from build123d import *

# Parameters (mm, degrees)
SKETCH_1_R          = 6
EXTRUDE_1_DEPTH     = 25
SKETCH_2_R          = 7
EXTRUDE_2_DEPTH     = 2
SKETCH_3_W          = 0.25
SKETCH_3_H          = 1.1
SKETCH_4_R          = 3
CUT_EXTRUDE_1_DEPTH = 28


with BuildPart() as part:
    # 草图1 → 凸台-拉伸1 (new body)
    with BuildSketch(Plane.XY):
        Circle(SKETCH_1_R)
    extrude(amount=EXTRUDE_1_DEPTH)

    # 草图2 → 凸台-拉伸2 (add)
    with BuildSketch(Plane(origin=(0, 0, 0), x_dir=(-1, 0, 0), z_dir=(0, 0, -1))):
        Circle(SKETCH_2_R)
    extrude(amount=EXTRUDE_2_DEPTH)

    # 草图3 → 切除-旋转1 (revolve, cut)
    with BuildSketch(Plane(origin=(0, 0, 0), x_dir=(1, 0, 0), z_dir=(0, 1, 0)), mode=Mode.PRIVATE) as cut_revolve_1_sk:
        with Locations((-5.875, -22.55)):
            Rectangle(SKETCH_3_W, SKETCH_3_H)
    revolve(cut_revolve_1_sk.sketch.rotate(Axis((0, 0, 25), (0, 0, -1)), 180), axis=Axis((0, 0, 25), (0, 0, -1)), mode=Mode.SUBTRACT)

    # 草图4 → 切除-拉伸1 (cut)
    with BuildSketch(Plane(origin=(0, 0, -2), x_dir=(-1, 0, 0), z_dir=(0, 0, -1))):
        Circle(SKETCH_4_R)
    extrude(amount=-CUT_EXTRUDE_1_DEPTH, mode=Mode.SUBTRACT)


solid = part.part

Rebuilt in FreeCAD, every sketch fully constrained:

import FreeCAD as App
import Part
import Sketcher

V = App.Vector
Q = App.Units.Quantity


def add_polygon(sketch, points):
    """Adds a closed chain of lines whose ends are joined by coincident constraints."""
    first, n = sketch.GeometryCount, len(points)
    for a, b in zip(points, points[1:] + points[:1]):
        sketch.addGeometry(Part.LineSegment(App.Vector(*a, 0), App.Vector(*b, 0)), False)
    for i in range(n):
        sketch.addConstraint(Sketcher.Constraint("Coincident", first + i, 2, first + (i + 1) % n, 1))

doc = App.newDocument("Part")
body = doc.addObject("PartDesign::Body", "Body")

sketch1 = body.newObject("Sketcher::SketchObject", "Sketch")
sketch1.AttachmentSupport = (doc.getObject("XY_Plane"), [""])
sketch1.MapMode = "FlatFace"
sketch1.addGeometry(Part.Circle(V(0, 0, 0), V(0, 0, 1), 6), False)
sketch1.addConstraint(Sketcher.Constraint("Coincident", 0, 3, -1, 1))
sketch1.addConstraint(Sketcher.Constraint("Diameter", 0, Q("12 mm")))
pad1 = body.newObject("PartDesign::Pad", "Pad")
pad1.Profile = sketch1
pad1.Length = 25

sketch2 = body.newObject("Sketcher::SketchObject", "Sketch001")
sketch2.AttachmentSupport = (doc.getObject("XY_Plane"), [""])
sketch2.MapMode = "FlatFace"
sketch2.addGeometry(Part.Circle(V(0, 0, 0), V(0, 0, 1), 7), False)
sketch2.addConstraint(Sketcher.Constraint("Coincident", 0, 3, -1, 1))
sketch2.addConstraint(Sketcher.Constraint("Diameter", 0, Q("14 mm")))
pad2 = body.newObject("PartDesign::Pad", "Pad001")
pad2.Profile = sketch2
pad2.Length = 2
pad2.Reversed = True

sketch3 = body.newObject("Sketcher::SketchObject", "Sketch002")
sketch3.AttachmentSupport = (doc.getObject("XZ_Plane"), [""])
sketch3.MapMode = "FlatFace"
add_polygon(sketch3, [(-6, 22), (-6, 23.1), (-5.75, 23.1), (-5.75, 22)])
sketch3.addConstraint(Sketcher.Constraint("Vertical", 0))
sketch3.addConstraint(Sketcher.Constraint("Horizontal", 1))
sketch3.addConstraint(Sketcher.Constraint("Vertical", 2))
sketch3.addConstraint(Sketcher.Constraint("Horizontal", 3))
sketch3.addConstraint(Sketcher.Constraint("DistanceY", 0, 1, 0, 2, Q("1.1 mm")))
sketch3.addConstraint(Sketcher.Constraint("DistanceX", 0, 2, -1, 1, Q("6 mm")))
sketch3.addConstraint(Sketcher.Constraint("DistanceY", -1, 1, 2, 2, Q("22 mm")))
sketch3.addConstraint(Sketcher.Constraint("DistanceX", 1, 1, 1, 2, Q("0.25 mm")))
groove = body.newObject("PartDesign::Groove", "Groove")
groove.Profile = sketch3
groove.ReferenceAxis = (sketch3, ["V_Axis"])
groove.Angle = 360

sketch4 = body.newObject("Sketcher::SketchObject", "Sketch003")
sketch4.AttachmentSupport = (doc.getObject("XY_Plane"), [""])
sketch4.MapMode = "FlatFace"
sketch4.AttachmentOffset = App.Placement(V(0, 0, -2), App.Rotation())
sketch4.addGeometry(Part.Circle(V(0, 0, 0), V(0, 0, 1), 3), False)
sketch4.addConstraint(Sketcher.Constraint("Coincident", 0, 3, -1, 1))
sketch4.addConstraint(Sketcher.Constraint("Diameter", 0, Q("6 mm")))
pocket1 = body.newObject("PartDesign::Pocket", "Pocket")
pocket1.Profile = sketch4
pocket1.Length = 28
pocket1.Reversed = True

doc.recompute()
